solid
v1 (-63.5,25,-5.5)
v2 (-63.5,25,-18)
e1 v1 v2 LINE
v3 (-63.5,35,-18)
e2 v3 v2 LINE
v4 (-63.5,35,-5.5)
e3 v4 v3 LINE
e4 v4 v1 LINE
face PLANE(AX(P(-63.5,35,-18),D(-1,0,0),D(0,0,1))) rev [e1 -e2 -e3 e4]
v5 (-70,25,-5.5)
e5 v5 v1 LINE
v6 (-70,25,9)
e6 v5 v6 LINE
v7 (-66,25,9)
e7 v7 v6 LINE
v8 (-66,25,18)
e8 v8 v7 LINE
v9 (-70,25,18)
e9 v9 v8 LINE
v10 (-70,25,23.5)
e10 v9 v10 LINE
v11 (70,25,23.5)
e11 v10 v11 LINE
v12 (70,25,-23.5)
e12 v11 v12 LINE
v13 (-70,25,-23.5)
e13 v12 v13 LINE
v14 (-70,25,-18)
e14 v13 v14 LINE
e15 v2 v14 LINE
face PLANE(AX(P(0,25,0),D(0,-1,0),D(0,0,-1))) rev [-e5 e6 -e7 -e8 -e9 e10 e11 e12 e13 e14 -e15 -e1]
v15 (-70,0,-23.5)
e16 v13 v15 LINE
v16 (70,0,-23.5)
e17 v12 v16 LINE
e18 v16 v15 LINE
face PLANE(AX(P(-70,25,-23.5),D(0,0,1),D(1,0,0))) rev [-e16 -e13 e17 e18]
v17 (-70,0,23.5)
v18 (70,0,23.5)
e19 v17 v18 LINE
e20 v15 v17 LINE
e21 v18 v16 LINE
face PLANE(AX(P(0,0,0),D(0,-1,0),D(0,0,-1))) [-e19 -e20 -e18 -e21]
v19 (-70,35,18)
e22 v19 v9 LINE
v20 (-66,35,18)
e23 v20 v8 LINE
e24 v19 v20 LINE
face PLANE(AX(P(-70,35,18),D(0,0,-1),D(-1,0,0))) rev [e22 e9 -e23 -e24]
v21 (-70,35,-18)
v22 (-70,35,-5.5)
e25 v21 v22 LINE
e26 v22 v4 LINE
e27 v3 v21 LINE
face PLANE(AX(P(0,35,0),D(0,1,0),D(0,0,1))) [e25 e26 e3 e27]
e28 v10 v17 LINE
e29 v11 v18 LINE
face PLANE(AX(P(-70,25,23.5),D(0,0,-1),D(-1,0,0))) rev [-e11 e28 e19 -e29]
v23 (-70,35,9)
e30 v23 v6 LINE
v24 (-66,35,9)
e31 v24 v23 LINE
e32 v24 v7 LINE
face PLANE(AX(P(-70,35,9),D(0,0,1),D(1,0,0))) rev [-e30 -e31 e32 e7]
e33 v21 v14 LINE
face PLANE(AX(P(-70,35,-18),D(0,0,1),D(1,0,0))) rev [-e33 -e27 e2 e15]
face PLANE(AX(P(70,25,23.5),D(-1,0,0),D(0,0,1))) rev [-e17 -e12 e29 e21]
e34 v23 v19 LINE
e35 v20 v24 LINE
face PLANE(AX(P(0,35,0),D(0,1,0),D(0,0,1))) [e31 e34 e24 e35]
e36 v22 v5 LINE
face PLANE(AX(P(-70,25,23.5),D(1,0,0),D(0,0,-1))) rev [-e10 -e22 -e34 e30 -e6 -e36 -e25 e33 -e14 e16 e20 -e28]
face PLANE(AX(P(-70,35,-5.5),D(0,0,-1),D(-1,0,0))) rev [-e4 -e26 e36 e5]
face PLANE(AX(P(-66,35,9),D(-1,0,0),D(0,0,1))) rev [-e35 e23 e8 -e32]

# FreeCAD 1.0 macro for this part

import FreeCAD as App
import Part
import Sketcher
Q = App.Units.Quantity


def add_polygon(sketch, points):
    """Adds a closed chain of lines whose ends are joined by coincident constraints."""
    first, n = sketch.GeometryCount, len(points)
    for a, b in zip(points, points[1:] + points[:1]):
        sketch.addGeometry(Part.LineSegment(App.Vector(*a, 0), App.Vector(*b, 0)), False)
    for i in range(n):
        sketch.addConstraint(Sketcher.Constraint("Coincident", first + i, 2, first + (i + 1) % n, 1))

doc = App.newDocument("Part")
params = doc.addObject("Spreadsheet::Sheet", "Params")
for row, (alias, value) in enumerate([
    ("sketch1_width", "140 mm"),
    ("sketch1_height", "47 mm"),
    ("pad1_length", "25 mm"),
    ("sketch2_width", "4 mm"),
    ("sketch2_height", "9 mm"),
    ("sketch2_width2", "6.5 mm"),
    ("sketch2_height2", "12.5 mm"),
    ("pad2_length", "10 mm"),
], start=1):
    params.set(f"A{row}", alias)
    params.set(f"B{row}", "=" + value)
    params.setAlias(f"B{row}", alias)

body = doc.addObject("PartDesign::Body", "Body")

sketch1 = doc.addObject("Sketcher::SketchObject", "Sketch")
body.addObject(sketch1)
sketch1.AttachmentSupport = (doc.XZ_Plane, [""])
sketch1.MapMode = "FlatFace"
add_polygon(sketch1, [(-70, -24), (-70, 24), (70, 24), (70, -24)])
sketch1.addConstraint(Sketcher.Constraint("Vertical", 0))
sketch1.addConstraint(Sketcher.Constraint("Horizontal", 1))
sketch1.addConstraint(Sketcher.Constraint("Vertical", 2))
sketch1.addConstraint(Sketcher.Constraint("Horizontal", 3))
sketch1.addConstraint(Sketcher.Constraint("Symmetric", 0, 2, 2, 2, -1, 1))
sketch1.addConstraint(Sketcher.Constraint("DistanceX", 1, 1, 1, 2, Q("140 mm")))
sketch1.addConstraint(Sketcher.Constraint("DistanceY", 0, 1, 0, 2, Q("47 mm")))
sketch1.setExpression("Constraints[9]", "Params.sketch1_width")
sketch1.setExpression("Constraints[10]", "Params.sketch1_height")
pad1 = doc.addObject("PartDesign::Pad", "Pad")
body.addObject(pad1)
pad1.Profile = sketch1
pad1.setExpression("Length", "Params.pad1_length")
pad1.Reversed = True

sketch2 = doc.addObject("Sketcher::SketchObject", "Sketch001")
body.addObject(sketch2)
sketch2.AttachmentSupport = (doc.XZ_Plane, [""])
sketch2.MapMode = "FlatFace"
sketch2.AttachmentOffset = App.Placement(App.Vector(0, 0, -25), App.Rotation())
add_polygon(sketch2, [(-70, -18), (-70, -5.5), (-63.5, -5.5), (-63.5, -18)])
add_polygon(sketch2, [(-70, 9), (-70, 18), (-66, 18), (-66, 9)])
sketch2.addConstraint(Sketcher.Constraint("Vertical", 0))
sketch2.addConstraint(Sketcher.Constraint("Horizontal", 1))
sketch2.addConstraint(Sketcher.Constraint("Vertical", 2))
sketch2.addConstraint(Sketcher.Constraint("Horizontal", 3))
sketch2.addConstraint(Sketcher.Constraint("Vertical", 4))
sketch2.addConstraint(Sketcher.Constraint("Horizontal", 5))
sketch2.addConstraint(Sketcher.Constraint("Vertical", 6))
sketch2.addConstraint(Sketcher.Constraint("Horizontal", 7))
sketch2.addConstraint(Sketcher.Constraint("Symmetric", 3, 2, 4, 2, -1))
sketch2.addConstraint(Sketcher.Constraint("DistanceX", 5, 1, 5, 2, Q("4 mm")))
sketch2.addConstraint(Sketcher.Constraint("DistanceY", 4, 1, 4, 2, Q("9 mm")))
sketch2.addConstraint(Sketcher.Constraint("DistanceX", 1, 1, 1, 2, Q("6.5 mm")))
sketch2.addConstraint(Sketcher.Constraint("DistanceY", 0, 1, 0, 2, Q("12.5 mm")))
sketch2.addConstraint(Sketcher.Constraint("DistanceX", 0, 2, -1, 1, Q("70 mm")))
sketch2.addConstraint(Sketcher.Constraint("DistanceY", 2, 2, -1, 1, Q("18 mm")))
sketch2.setExpression("Constraints[17]", "Params.sketch2_width")
sketch2.setExpression("Constraints[18]", "Params.sketch2_height")
sketch2.setExpression("Constraints[19]", "Params.sketch2_width2")
sketch2.setExpression("Constraints[20]", "Params.sketch2_height2")
pad2 = doc.addObject("PartDesign::Pad", "Pad001")
body.addObject(pad2)
pad2.Profile = sketch2
pad2.setExpression("Length", "Params.pad2_length")
pad2.Reversed = True

doc.recompute()
